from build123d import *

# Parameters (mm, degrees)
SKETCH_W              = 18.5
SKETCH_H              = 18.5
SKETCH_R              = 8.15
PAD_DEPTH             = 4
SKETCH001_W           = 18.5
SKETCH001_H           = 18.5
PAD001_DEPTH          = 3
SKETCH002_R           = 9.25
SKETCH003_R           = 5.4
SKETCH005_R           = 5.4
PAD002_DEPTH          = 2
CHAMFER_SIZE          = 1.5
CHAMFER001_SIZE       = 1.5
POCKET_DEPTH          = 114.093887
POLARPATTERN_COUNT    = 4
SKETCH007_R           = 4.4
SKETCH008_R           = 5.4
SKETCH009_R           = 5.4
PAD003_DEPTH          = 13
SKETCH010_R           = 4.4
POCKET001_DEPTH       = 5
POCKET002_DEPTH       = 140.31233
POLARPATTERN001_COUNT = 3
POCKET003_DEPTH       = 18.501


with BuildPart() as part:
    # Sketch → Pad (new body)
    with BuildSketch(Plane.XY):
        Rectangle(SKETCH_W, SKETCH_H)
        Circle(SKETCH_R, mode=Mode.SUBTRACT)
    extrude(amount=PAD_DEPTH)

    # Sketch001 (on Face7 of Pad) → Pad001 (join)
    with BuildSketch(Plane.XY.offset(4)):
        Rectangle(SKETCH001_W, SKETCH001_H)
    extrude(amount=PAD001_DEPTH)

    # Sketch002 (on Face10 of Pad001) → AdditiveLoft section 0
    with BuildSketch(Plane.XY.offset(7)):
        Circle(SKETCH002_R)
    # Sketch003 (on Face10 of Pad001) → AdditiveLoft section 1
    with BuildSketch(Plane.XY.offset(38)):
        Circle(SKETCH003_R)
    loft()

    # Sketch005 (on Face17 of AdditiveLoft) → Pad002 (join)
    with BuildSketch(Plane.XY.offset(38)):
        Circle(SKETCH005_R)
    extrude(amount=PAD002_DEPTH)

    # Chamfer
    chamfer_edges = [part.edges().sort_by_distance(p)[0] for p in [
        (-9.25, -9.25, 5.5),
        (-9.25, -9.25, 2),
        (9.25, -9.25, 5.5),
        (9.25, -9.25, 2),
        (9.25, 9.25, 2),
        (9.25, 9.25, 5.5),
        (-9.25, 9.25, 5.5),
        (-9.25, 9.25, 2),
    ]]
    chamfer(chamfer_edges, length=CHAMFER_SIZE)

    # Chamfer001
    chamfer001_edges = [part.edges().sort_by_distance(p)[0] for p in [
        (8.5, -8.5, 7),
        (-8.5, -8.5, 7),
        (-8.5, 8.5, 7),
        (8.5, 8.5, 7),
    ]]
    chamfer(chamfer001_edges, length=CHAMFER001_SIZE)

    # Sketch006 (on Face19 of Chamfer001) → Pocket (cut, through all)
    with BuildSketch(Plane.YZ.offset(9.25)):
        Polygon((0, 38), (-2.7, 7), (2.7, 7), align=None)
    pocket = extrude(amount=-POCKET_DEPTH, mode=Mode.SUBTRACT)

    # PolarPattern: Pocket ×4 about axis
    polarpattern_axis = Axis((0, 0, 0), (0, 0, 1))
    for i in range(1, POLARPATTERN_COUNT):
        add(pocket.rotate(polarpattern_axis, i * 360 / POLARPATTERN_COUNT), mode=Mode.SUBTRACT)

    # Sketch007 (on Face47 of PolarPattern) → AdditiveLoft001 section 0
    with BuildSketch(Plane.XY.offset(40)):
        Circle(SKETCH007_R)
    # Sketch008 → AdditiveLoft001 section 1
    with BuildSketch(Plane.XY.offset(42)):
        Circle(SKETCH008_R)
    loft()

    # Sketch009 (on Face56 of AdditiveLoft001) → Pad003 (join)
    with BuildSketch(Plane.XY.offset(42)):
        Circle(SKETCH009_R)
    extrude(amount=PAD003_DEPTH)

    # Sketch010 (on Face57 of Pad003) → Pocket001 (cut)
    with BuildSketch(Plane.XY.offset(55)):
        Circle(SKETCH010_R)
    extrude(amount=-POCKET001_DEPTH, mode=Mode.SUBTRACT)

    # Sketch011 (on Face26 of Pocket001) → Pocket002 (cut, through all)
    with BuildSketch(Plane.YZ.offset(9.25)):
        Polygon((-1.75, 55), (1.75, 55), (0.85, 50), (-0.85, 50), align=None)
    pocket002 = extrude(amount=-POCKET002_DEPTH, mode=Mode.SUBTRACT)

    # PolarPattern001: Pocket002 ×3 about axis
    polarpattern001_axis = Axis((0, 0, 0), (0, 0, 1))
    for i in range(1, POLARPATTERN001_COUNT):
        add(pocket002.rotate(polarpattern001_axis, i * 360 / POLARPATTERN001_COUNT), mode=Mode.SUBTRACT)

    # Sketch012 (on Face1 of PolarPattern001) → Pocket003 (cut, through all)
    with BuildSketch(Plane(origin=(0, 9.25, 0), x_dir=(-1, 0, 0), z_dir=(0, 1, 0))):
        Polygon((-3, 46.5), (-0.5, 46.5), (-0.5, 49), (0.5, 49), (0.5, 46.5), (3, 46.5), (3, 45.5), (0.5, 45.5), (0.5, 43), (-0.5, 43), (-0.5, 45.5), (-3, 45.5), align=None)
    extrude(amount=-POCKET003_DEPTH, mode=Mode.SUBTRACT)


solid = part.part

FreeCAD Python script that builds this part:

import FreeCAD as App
import Part
import Sketcher

V = App.Vector
Q = App.Units.Quantity


def edges_at(feature, points):
    """Names of the edges that pass closest to the given points."""
    edges = feature.Shape.Edges
    near = lambda p: min(range(len(edges)), key=lambda i: edges[i].distToShape(Part.Vertex(*p))[0])
    return sorted({f"Edge{near(p) + 1}" for p in points})

doc = App.newDocument("Part")
params = doc.addObject("Spreadsheet::Sheet", "Params")
for row, (alias, value) in enumerate([
    ("sketch1_diameter", "16.3 mm"),
    ("sketch1_width", "18.5 mm"),
    ("pad1_length", "4 mm"),
    ("sketch2_width", "18.5 mm"),
    ("pad2_length", "3 mm"),
    ("sketch3_diameter", "18.5 mm"),
    ("sketch4_diameter", "10.8 mm"),
    ("sketch5_diameter", "10.8 mm"),
    ("pad3_length", "2 mm"),
    ("chamfer_size", "1.5 mm"),
    ("chamfer2_size", "1.5 mm"),
    ("sketch6_width", "5.4 mm"),
    ("sketch7_diameter", "8.8 mm"),
    ("sketch8_diameter", "10.8 mm"),
    ("sketch9_diameter", "10.8 mm"),
    ("pad4_length", "13 mm"),
    ("sketch10_diameter", "8.8 mm"),
    ("pocket2_length", "5 mm"),
    ("sketch11_width", "3.5 mm"),
    ("sketch11_width2", "1.7 mm"),
    ("sketch12_width", "1 mm"),
    ("sketch12_width2", "2.5 mm"),
], start=1):
    params.set(f"A{row}", alias)
    params.set(f"B{row}", "=" + value)
    params.setAlias(f"B{row}", alias)

body = doc.addObject("PartDesign::Body", "Body")

sketch1 = body.newObject("Sketcher::SketchObject", "Sketch")
sketch1.AttachmentSupport = (doc.getObject("XY_Plane"), [""])
sketch1.MapMode = "FlatFace"
sketch1.addGeometry([
    Part.LineSegment(V(-9, 9, 0), V(-9, -9, 0)),
    Part.LineSegment(V(-9, -9, 0), V(9, -9, 0)),
    Part.LineSegment(V(9, -9, 0), V(9, 9, 0)),
    Part.LineSegment(V(9, 9, 0), V(-9, 9, 0)),
    Part.Circle(V(0, 0, 0), V(0, 0, 1), 8),
], False)
sketch1.addConstraint([
    Sketcher.Constraint("Coincident", 0, 2, 1, 1),
    Sketcher.Constraint("Coincident", 1, 2, 2, 1),
    Sketcher.Constraint("Coincident", 2, 2, 3, 1),
    Sketcher.Constraint("Coincident", 3, 2, 0, 1),
    Sketcher.Constraint("Vertical", 0),
    Sketcher.Constraint("Horizontal", 1),
    Sketcher.Constraint("Vertical", 2),
    Sketcher.Constraint("Horizontal", 3),
    Sketcher.Constraint("Coincident", 4, 3, -1, 1),
    Sketcher.Constraint("Symmetric", 0, 2, 2, 2, -1, 1),
    Sketcher.Constraint("Equal", 3, 0),
    Sketcher.Constraint("Diameter", 4, Q("16.3 mm")),
    Sketcher.Constraint("DistanceX", 1, 1, 1, 2, Q("18.5 mm")),
])
sketch1.setExpression("Constraints[11]", "Params.sketch1_diameter")
sketch1.setExpression("Constraints[12]", "Params.sketch1_width")
pad1 = body.newObject("PartDesign::Pad", "Pad")
pad1.Profile = sketch1
pad1.setExpression("Length", "Params.pad1_length")

sketch2 = body.newObject("Sketcher::SketchObject", "Sketch001")
sketch2.AttachmentSupport = (doc.getObject("XY_Plane"), [""])
sketch2.MapMode = "FlatFace"
sketch2.AttachmentOffset = App.Placement(V(0, 0, 4), App.Rotation())
sketch2.addGeometry([
    Part.LineSegment(V(-9, 9, 0), V(-9, -9, 0)),
    Part.LineSegment(V(-9, -9, 0), V(9, -9, 0)),
    Part.LineSegment(V(9, -9, 0), V(9, 9, 0)),
    Part.LineSegment(V(9, 9, 0), V(-9, 9, 0)),
], False)
sketch2.addConstraint([
    Sketcher.Constraint("Coincident", 0, 2, 1, 1),
    Sketcher.Constraint("Coincident", 1, 2, 2, 1),
    Sketcher.Constraint("Coincident", 2, 2, 3, 1),
    Sketcher.Constraint("Coincident", 3, 2, 0, 1),
    Sketcher.Constraint("Vertical", 0),
    Sketcher.Constraint("Horizontal", 1),
    Sketcher.Constraint("Vertical", 2),
    Sketcher.Constraint("Horizontal", 3),
    Sketcher.Constraint("Symmetric", 0, 2, 2, 2, -1, 1),
    Sketcher.Constraint("Equal", 3, 0),
    Sketcher.Constraint("DistanceX", 1, 1, 1, 2, Q("18.5 mm")),
])
sketch2.setExpression("Constraints[10]", "Params.sketch2_width")
pad2 = body.newObject("PartDesign::Pad", "Pad001")
pad2.Profile = sketch2
pad2.setExpression("Length", "Params.pad2_length")

sketch3 = body.newObject("Sketcher::SketchObject", "Sketch002")
sketch3.AttachmentSupport = (doc.getObject("XY_Plane"), [""])
sketch3.MapMode = "FlatFace"
sketch3.AttachmentOffset = App.Placement(V(0, 0, 7), App.Rotation())
sketch3.addGeometry(Part.Circle(V(0, 0, 0), V(0, 0, 1), 9), False)
sketch3.addConstraint([
    Sketcher.Constraint("Coincident", 0, 3, -1, 1),
    Sketcher.Constraint("Diameter", 0, Q("18.5 mm")),
])
sketch3.setExpression("Constraints[1]", "Params.sketch3_diameter")

sketch4 = body.newObject("Sketcher::SketchObject", "Sketch003")
sketch4.AttachmentSupport = (doc.getObject("XY_Plane"), [""])
sketch4.MapMode = "FlatFace"
sketch4.AttachmentOffset = App.Placement(V(0, 0, 38), App.Rotation())
sketch4.addGeometry(Part.Circle(V(0, 0, 0), V(0, 0, 1), 5), False)
sketch4.addConstraint([
    Sketcher.Constraint("Coincident", 0, 3, -1, 1),
    Sketcher.Constraint("Diameter", 0, Q("10.8 mm")),
])
sketch4.setExpression("Constraints[1]", "Params.sketch4_diameter")

additiveloft = body.newObject("PartDesign::AdditiveLoft", "AdditiveLoft")
additiveloft.Profile = sketch3
additiveloft.Sections = [sketch4]

sketch5 = body.newObject("Sketcher::SketchObject", "Sketch004")
sketch5.AttachmentSupport = (doc.getObject("XY_Plane"), [""])
sketch5.MapMode = "FlatFace"
sketch5.AttachmentOffset = App.Placement(V(0, 0, 38), App.Rotation())
sketch5.addGeometry(Part.Circle(V(0, 0, 0), V(0, 0, 1), 5), False)
sketch5.addConstraint([
    Sketcher.Constraint("Coincident", 0, 3, -1, 1),
    Sketcher.Constraint("Diameter", 0, Q("10.8 mm")),
])
sketch5.setExpression("Constraints[1]", "Params.sketch5_diameter")
pad3 = body.newObject("PartDesign::Pad", "Pad002")
pad3.Profile = sketch5
pad3.setExpression("Length", "Params.pad3_length")
doc.recompute()

chamfer = body.newObject("PartDesign::Chamfer", "Chamfer")
chamfer.Base = (pad3, edges_at(pad3, [
    (-9.25, -9.25, 3.5),
    (-9.25, -9.25, 3.5),
    (9.25, -9.25, 3.5),
    (9.25, -9.25, 3.5),
    (9.25, 9.25, 3.5),
    (9.25, 9.25, 3.5),
    (-9.25, 9.25, 3.5),
    (-9.25, 9.25, 3.5),
]))
chamfer.setExpression("Size", "Params.chamfer_size")
doc.recompute()

chamfer2 = body.newObject("PartDesign::Chamfer", "Chamfer001")
chamfer2.Base = (chamfer, edges_at(chamfer, [
    (8.5, -8.5, 7),
    (-8.5, -8.5, 7),
    (-8.5, 8.5, 7),
    (8.5, 8.5, 7),
]))
chamfer2.setExpression("Size", "Params.chamfer2_size")

sketch6 = body.newObject("Sketcher::SketchObject", "Sketch005")
sketch6.AttachmentSupport = (doc.getObject("YZ_Plane"), [""])
sketch6.MapMode = "FlatFace"
sketch6.AttachmentOffset = App.Placement(V(0, 0, 9.25), App.Rotation())
sketch6.addGeometry([
    Part.LineSegment(V(0, 38, 0), V(-3, 7, 0)),
    Part.LineSegment(V(-3, 7, 0), V(3, 7, 0)),
    Part.LineSegment(V(3, 7, 0), V(0, 38, 0)),
], False)
sketch6.addConstraint([
    Sketcher.Constraint("Coincident", 0, 2, 1, 1),
    Sketcher.Constraint("Coincident", 1, 2, 2, 1),
    Sketcher.Constraint("Coincident", 2, 2, 0, 1),
    Sketcher.Constraint("Horizontal", 1),
    Sketcher.Constraint("PointOnObject", 2, 2, -2),
    Sketcher.Constraint("Equal", 0, 2),
    Sketcher.Constraint("DistanceX", 1, 1, 1, 2, Q("5.4 mm")),
    Sketcher.Constraint("DistanceY", -1, 1, 0, 2, Q("7 mm")),
    Sketcher.Constraint("DistanceY", -1, 1, 2, 2, Q("38 mm")),
])
sketch6.setExpression("Constraints[6]", "Params.sketch6_width")
pocket1 = body.newObject("PartDesign::Pocket", "Pocket")
pocket1.Profile = sketch6
pocket1.Type = "ThroughAll"
doc.recompute()

polarpattern = body.newObject("PartDesign::PolarPattern", "PolarPattern")
polarpattern.Originals = [pocket1]
polarpattern.Axis = (doc.getObject("Z_Axis"), [""])
polarpattern.Angle = 360
polarpattern.Occurrences = 4
body.Tip = polarpattern

sketch7 = body.newObject("Sketcher::SketchObject", "Sketch006")
sketch7.AttachmentSupport = (doc.getObject("XY_Plane"), [""])
sketch7.MapMode = "FlatFace"
sketch7.AttachmentOffset = App.Placement(V(0, 0, 40), App.Rotation())
sketch7.addGeometry(Part.Circle(V(0, 0, 0), V(0, 0, 1), 4.4), False)
sketch7.addConstraint([
    Sketcher.Constraint("Coincident", 0, 3, -1, 1),
    Sketcher.Constraint("Diameter", 0, Q("8.8 mm")),
])
sketch7.setExpression("Constraints[1]", "Params.sketch7_diameter")

sketch8 = body.newObject("Sketcher::SketchObject", "Sketch007")
sketch8.AttachmentSupport = (doc.getObject("XY_Plane"), [""])
sketch8.MapMode = "FlatFace"
sketch8.AttachmentOffset = App.Placement(V(0, 0, 42), App.Rotation())
sketch8.addGeometry(Part.Circle(V(0, 0, 0), V(0, 0, 1), 5), False)
sketch8.addConstraint([
    Sketcher.Constraint("Coincident", 0, 3, -1, 1),
    Sketcher.Constraint("Diameter", 0, Q("10.8 mm")),
])
sketch8.setExpression("Constraints[1]", "Params.sketch8_diameter")

additiveloft2 = body.newObject("PartDesign::AdditiveLoft", "AdditiveLoft001")
additiveloft2.Profile = sketch7
additiveloft2.Sections = [sketch8]

sketch9 = body.newObject("Sketcher::SketchObject", "Sketch008")
sketch9.AttachmentSupport = (doc.getObject("XY_Plane"), [""])
sketch9.MapMode = "FlatFace"
sketch9.AttachmentOffset = App.Placement(V(0, 0, 42), App.Rotation())
sketch9.addGeometry(Part.Circle(V(0, 0, 0), V(0, 0, 1), 5), False)
sketch9.addConstraint([
    Sketcher.Constraint("Coincident", 0, 3, -1, 1),
    Sketcher.Constraint("Diameter", 0, Q("10.8 mm")),
])
sketch9.setExpression("Constraints[1]", "Params.sketch9_diameter")
pad4 = body.newObject("PartDesign::Pad", "Pad003")
pad4.Profile = sketch9
pad4.setExpression("Length", "Params.pad4_length")

sketch10 = body.newObject("Sketcher::SketchObject", "Sketch009")
sketch10.AttachmentSupport = (doc.getObject("XY_Plane"), [""])
sketch10.MapMode = "FlatFace"
sketch10.AttachmentOffset = App.Placement(V(0, 0, 55), App.Rotation())
sketch10.addGeometry(Part.Circle(V(0, 0, 0), V(0, 0, 1), 4.4), False)
sketch10.addConstraint([
    Sketcher.Constraint("Coincident", 0, 3, -1, 1),
    Sketcher.Constraint("Diameter", 0, Q("8.8 mm")),
])
sketch10.setExpression("Constraints[1]", "Params.sketch10_diameter")
pocket2 = body.newObject("PartDesign::Pocket", "Pocket001")
pocket2.Profile = sketch10
pocket2.setExpression("Length", "Params.pocket2_length")

sketch11 = body.newObject("Sketcher::SketchObject", "Sketch010")
sketch11.AttachmentSupport = (doc.getObject("YZ_Plane"), [""])
sketch11.MapMode = "FlatFace"
sketch11.AttachmentOffset = App.Placement(V(0, 0, 9.25), App.Rotation())
sketch11.addGeometry([
    Part.LineSegment(V(1.8, 55, 0), V(-1.8, 55, 0)),
    Part.LineSegment(V(-1.8, 55, 0), V(-0.8, 50, 0)),
    Part.LineSegment(V(-0.8, 50, 0), V(0.8, 50, 0)),
    Part.LineSegment(V(0.8, 50, 0), V(1.8, 55, 0)),
], False)
sketch11.addConstraint([
    Sketcher.Constraint("Coincident", 0, 2, 1, 1),
    Sketcher.Constraint("Coincident", 1, 2, 2, 1),
    Sketcher.Constraint("Coincident", 2, 2, 3, 1),
    Sketcher.Constraint("Coincident", 3, 2, 0, 1),
    Sketcher.Constraint("Horizontal", 0),
    Sketcher.Constraint("Horizontal", 2),
    Sketcher.Constraint("Equal", 1, 3),
    Sketcher.Constraint("DistanceX", 0, 2, 0, 1, Q("3.5 mm")),
    Sketcher.Constraint("DistanceX", 2, 1, 2, 2, Q("1.7 mm")),
    Sketcher.Constraint("DistanceY", -1, 1, 0, 2, Q("55 mm")),
    Sketcher.Constraint("DistanceY", -1, 1, 1, 2, Q("50 mm")),
    Sketcher.Constraint("DistanceX", 0, 2, -1, 1, Q("1.75 mm")),
])
sketch11.setExpression("Constraints[7]", "Params.sketch11_width")
sketch11.setExpression("Constraints[8]", "Params.sketch11_width2")
pocket3 = body.newObject("PartDesign::Pocket", "Pocket002")
pocket3.Profile = sketch11
pocket3.Type = "ThroughAll"
doc.recompute()

polarpattern2 = body.newObject("PartDesign::PolarPattern", "PolarPattern001")
polarpattern2.Originals = [pocket3]
polarpattern2.Axis = (doc.getObject("Z_Axis"), [""])
polarpattern2.Angle = 360
polarpattern2.Occurrences = 3
body.Tip = polarpattern2

sketch12 = body.newObject("Sketcher::SketchObject", "Sketch011")
sketch12.AttachmentSupport = (doc.getObject("XZ_Plane"), [""])
sketch12.MapMode = "FlatFace"
sketch12.AttachmentOffset = App.Placement(V(0, 0, -9.25), App.Rotation())
sketch12.addGeometry([
    Part.LineSegment(V(0.5, 46.5, 0), V(3, 46.5, 0)),
    Part.LineSegment(V(3, 46.5, 0), V(3, 45.5, 0)),
    Part.LineSegment(V(3, 45.5, 0), V(0.5, 45.5, 0)),
    Part.LineSegment(V(0.5, 45.5, 0), V(0.5, 43, 0)),
    Part.LineSegment(V(0.5, 43, 0), V(-0.5, 43, 0)),
    Part.LineSegment(V(-0.5, 43, 0), V(-0.5, 45.5, 0)),
    Part.LineSegment(V(-0.5, 45.5, 0), V(-3, 45.5, 0)),
    Part.LineSegment(V(-3, 45.5, 0), V(-3, 46.5, 0)),
    Part.LineSegment(V(-3, 46.5, 0), V(-0.5, 46.5, 0)),
    Part.LineSegment(V(-0.5, 46.5, 0), V(-0.5, 49, 0)),
    Part.LineSegment(V(-0.5, 49, 0), V(0.5, 49, 0)),
    Part.LineSegment(V(0.5, 49, 0), V(0.5, 46.5, 0)),
], False)
sketch12.addConstraint([
    Sketcher.Constraint("Coincident", 0, 2, 1, 1),
    Sketcher.Constraint("Coincident", 1, 2, 2, 1),
    Sketcher.Constraint("Coincident", 2, 2, 3, 1),
    Sketcher.Constraint("Coincident", 3, 2, 4, 1),
    Sketcher.Constraint("Coincident", 4, 2, 5, 1),
    Sketcher.Constraint("Coincident", 5, 2, 6, 1),
    Sketcher.Constraint("Coincident", 6, 2, 7, 1),
    Sketcher.Constraint("Coincident", 7, 2, 8, 1),
    Sketcher.Constraint("Coincident", 8, 2, 9, 1),
    Sketcher.Constraint("Coincident", 9, 2, 10, 1),
    Sketcher.Constraint("Coincident", 10, 2, 11, 1),
    Sketcher.Constraint("Coincident", 11, 2, 0, 1),
    Sketcher.Constraint("Horizontal", 0),
    Sketcher.Constraint("Vertical", 1),
    Sketcher.Constraint("Horizontal", 2),
    Sketcher.Constraint("Vertical", 3),
    Sketcher.Constraint("Horizontal", 4),
    Sketcher.Constraint("Vertical", 5),
    Sketcher.Constraint("Horizontal", 6),
    Sketcher.Constraint("Vertical", 7),
    Sketcher.Constraint("Horizontal", 8),
    Sketcher.Constraint("Vertical", 9),
    Sketcher.Constraint("Horizontal", 10),
    Sketcher.Constraint("Vertical", 11),
    Sketcher.Constraint("Symmetric", 2, 2, 5, 2, -2),
    Sketcher.Constraint("Symmetric", 0, 2, 7, 2, -2),
    Sketcher.Constraint("Vertical", 5, 2, 8, 2),
    Sketcher.Constraint("Vertical", 3, 2, 10, 2),
    Sketcher.Constraint("Equal", 10, 1),
    Sketcher.Constraint("Equal", 8, 3),
    Sketcher.Constraint("Equal", 5, 9),
    Sketcher.Constraint("DistanceX", 4, 2, 4, 1, Q("1 mm")),
    Sketcher.Constraint("DistanceX", 0, 1, 0, 2, Q("2.5 mm")),
    Sketcher.Constraint("DistanceY", -1, 1, 3, 2, Q("43 mm")),
])
sketch12.setExpression("Constraints[31]", "Params.sketch12_width")
sketch12.setExpression("Constraints[32]", "Params.sketch12_width2")
pocket4 = body.newObject("PartDesign::Pocket", "Pocket003")
pocket4.Profile = sketch12
pocket4.Type = "ThroughAll"
pocket4.Reversed = True

doc.recompute()
